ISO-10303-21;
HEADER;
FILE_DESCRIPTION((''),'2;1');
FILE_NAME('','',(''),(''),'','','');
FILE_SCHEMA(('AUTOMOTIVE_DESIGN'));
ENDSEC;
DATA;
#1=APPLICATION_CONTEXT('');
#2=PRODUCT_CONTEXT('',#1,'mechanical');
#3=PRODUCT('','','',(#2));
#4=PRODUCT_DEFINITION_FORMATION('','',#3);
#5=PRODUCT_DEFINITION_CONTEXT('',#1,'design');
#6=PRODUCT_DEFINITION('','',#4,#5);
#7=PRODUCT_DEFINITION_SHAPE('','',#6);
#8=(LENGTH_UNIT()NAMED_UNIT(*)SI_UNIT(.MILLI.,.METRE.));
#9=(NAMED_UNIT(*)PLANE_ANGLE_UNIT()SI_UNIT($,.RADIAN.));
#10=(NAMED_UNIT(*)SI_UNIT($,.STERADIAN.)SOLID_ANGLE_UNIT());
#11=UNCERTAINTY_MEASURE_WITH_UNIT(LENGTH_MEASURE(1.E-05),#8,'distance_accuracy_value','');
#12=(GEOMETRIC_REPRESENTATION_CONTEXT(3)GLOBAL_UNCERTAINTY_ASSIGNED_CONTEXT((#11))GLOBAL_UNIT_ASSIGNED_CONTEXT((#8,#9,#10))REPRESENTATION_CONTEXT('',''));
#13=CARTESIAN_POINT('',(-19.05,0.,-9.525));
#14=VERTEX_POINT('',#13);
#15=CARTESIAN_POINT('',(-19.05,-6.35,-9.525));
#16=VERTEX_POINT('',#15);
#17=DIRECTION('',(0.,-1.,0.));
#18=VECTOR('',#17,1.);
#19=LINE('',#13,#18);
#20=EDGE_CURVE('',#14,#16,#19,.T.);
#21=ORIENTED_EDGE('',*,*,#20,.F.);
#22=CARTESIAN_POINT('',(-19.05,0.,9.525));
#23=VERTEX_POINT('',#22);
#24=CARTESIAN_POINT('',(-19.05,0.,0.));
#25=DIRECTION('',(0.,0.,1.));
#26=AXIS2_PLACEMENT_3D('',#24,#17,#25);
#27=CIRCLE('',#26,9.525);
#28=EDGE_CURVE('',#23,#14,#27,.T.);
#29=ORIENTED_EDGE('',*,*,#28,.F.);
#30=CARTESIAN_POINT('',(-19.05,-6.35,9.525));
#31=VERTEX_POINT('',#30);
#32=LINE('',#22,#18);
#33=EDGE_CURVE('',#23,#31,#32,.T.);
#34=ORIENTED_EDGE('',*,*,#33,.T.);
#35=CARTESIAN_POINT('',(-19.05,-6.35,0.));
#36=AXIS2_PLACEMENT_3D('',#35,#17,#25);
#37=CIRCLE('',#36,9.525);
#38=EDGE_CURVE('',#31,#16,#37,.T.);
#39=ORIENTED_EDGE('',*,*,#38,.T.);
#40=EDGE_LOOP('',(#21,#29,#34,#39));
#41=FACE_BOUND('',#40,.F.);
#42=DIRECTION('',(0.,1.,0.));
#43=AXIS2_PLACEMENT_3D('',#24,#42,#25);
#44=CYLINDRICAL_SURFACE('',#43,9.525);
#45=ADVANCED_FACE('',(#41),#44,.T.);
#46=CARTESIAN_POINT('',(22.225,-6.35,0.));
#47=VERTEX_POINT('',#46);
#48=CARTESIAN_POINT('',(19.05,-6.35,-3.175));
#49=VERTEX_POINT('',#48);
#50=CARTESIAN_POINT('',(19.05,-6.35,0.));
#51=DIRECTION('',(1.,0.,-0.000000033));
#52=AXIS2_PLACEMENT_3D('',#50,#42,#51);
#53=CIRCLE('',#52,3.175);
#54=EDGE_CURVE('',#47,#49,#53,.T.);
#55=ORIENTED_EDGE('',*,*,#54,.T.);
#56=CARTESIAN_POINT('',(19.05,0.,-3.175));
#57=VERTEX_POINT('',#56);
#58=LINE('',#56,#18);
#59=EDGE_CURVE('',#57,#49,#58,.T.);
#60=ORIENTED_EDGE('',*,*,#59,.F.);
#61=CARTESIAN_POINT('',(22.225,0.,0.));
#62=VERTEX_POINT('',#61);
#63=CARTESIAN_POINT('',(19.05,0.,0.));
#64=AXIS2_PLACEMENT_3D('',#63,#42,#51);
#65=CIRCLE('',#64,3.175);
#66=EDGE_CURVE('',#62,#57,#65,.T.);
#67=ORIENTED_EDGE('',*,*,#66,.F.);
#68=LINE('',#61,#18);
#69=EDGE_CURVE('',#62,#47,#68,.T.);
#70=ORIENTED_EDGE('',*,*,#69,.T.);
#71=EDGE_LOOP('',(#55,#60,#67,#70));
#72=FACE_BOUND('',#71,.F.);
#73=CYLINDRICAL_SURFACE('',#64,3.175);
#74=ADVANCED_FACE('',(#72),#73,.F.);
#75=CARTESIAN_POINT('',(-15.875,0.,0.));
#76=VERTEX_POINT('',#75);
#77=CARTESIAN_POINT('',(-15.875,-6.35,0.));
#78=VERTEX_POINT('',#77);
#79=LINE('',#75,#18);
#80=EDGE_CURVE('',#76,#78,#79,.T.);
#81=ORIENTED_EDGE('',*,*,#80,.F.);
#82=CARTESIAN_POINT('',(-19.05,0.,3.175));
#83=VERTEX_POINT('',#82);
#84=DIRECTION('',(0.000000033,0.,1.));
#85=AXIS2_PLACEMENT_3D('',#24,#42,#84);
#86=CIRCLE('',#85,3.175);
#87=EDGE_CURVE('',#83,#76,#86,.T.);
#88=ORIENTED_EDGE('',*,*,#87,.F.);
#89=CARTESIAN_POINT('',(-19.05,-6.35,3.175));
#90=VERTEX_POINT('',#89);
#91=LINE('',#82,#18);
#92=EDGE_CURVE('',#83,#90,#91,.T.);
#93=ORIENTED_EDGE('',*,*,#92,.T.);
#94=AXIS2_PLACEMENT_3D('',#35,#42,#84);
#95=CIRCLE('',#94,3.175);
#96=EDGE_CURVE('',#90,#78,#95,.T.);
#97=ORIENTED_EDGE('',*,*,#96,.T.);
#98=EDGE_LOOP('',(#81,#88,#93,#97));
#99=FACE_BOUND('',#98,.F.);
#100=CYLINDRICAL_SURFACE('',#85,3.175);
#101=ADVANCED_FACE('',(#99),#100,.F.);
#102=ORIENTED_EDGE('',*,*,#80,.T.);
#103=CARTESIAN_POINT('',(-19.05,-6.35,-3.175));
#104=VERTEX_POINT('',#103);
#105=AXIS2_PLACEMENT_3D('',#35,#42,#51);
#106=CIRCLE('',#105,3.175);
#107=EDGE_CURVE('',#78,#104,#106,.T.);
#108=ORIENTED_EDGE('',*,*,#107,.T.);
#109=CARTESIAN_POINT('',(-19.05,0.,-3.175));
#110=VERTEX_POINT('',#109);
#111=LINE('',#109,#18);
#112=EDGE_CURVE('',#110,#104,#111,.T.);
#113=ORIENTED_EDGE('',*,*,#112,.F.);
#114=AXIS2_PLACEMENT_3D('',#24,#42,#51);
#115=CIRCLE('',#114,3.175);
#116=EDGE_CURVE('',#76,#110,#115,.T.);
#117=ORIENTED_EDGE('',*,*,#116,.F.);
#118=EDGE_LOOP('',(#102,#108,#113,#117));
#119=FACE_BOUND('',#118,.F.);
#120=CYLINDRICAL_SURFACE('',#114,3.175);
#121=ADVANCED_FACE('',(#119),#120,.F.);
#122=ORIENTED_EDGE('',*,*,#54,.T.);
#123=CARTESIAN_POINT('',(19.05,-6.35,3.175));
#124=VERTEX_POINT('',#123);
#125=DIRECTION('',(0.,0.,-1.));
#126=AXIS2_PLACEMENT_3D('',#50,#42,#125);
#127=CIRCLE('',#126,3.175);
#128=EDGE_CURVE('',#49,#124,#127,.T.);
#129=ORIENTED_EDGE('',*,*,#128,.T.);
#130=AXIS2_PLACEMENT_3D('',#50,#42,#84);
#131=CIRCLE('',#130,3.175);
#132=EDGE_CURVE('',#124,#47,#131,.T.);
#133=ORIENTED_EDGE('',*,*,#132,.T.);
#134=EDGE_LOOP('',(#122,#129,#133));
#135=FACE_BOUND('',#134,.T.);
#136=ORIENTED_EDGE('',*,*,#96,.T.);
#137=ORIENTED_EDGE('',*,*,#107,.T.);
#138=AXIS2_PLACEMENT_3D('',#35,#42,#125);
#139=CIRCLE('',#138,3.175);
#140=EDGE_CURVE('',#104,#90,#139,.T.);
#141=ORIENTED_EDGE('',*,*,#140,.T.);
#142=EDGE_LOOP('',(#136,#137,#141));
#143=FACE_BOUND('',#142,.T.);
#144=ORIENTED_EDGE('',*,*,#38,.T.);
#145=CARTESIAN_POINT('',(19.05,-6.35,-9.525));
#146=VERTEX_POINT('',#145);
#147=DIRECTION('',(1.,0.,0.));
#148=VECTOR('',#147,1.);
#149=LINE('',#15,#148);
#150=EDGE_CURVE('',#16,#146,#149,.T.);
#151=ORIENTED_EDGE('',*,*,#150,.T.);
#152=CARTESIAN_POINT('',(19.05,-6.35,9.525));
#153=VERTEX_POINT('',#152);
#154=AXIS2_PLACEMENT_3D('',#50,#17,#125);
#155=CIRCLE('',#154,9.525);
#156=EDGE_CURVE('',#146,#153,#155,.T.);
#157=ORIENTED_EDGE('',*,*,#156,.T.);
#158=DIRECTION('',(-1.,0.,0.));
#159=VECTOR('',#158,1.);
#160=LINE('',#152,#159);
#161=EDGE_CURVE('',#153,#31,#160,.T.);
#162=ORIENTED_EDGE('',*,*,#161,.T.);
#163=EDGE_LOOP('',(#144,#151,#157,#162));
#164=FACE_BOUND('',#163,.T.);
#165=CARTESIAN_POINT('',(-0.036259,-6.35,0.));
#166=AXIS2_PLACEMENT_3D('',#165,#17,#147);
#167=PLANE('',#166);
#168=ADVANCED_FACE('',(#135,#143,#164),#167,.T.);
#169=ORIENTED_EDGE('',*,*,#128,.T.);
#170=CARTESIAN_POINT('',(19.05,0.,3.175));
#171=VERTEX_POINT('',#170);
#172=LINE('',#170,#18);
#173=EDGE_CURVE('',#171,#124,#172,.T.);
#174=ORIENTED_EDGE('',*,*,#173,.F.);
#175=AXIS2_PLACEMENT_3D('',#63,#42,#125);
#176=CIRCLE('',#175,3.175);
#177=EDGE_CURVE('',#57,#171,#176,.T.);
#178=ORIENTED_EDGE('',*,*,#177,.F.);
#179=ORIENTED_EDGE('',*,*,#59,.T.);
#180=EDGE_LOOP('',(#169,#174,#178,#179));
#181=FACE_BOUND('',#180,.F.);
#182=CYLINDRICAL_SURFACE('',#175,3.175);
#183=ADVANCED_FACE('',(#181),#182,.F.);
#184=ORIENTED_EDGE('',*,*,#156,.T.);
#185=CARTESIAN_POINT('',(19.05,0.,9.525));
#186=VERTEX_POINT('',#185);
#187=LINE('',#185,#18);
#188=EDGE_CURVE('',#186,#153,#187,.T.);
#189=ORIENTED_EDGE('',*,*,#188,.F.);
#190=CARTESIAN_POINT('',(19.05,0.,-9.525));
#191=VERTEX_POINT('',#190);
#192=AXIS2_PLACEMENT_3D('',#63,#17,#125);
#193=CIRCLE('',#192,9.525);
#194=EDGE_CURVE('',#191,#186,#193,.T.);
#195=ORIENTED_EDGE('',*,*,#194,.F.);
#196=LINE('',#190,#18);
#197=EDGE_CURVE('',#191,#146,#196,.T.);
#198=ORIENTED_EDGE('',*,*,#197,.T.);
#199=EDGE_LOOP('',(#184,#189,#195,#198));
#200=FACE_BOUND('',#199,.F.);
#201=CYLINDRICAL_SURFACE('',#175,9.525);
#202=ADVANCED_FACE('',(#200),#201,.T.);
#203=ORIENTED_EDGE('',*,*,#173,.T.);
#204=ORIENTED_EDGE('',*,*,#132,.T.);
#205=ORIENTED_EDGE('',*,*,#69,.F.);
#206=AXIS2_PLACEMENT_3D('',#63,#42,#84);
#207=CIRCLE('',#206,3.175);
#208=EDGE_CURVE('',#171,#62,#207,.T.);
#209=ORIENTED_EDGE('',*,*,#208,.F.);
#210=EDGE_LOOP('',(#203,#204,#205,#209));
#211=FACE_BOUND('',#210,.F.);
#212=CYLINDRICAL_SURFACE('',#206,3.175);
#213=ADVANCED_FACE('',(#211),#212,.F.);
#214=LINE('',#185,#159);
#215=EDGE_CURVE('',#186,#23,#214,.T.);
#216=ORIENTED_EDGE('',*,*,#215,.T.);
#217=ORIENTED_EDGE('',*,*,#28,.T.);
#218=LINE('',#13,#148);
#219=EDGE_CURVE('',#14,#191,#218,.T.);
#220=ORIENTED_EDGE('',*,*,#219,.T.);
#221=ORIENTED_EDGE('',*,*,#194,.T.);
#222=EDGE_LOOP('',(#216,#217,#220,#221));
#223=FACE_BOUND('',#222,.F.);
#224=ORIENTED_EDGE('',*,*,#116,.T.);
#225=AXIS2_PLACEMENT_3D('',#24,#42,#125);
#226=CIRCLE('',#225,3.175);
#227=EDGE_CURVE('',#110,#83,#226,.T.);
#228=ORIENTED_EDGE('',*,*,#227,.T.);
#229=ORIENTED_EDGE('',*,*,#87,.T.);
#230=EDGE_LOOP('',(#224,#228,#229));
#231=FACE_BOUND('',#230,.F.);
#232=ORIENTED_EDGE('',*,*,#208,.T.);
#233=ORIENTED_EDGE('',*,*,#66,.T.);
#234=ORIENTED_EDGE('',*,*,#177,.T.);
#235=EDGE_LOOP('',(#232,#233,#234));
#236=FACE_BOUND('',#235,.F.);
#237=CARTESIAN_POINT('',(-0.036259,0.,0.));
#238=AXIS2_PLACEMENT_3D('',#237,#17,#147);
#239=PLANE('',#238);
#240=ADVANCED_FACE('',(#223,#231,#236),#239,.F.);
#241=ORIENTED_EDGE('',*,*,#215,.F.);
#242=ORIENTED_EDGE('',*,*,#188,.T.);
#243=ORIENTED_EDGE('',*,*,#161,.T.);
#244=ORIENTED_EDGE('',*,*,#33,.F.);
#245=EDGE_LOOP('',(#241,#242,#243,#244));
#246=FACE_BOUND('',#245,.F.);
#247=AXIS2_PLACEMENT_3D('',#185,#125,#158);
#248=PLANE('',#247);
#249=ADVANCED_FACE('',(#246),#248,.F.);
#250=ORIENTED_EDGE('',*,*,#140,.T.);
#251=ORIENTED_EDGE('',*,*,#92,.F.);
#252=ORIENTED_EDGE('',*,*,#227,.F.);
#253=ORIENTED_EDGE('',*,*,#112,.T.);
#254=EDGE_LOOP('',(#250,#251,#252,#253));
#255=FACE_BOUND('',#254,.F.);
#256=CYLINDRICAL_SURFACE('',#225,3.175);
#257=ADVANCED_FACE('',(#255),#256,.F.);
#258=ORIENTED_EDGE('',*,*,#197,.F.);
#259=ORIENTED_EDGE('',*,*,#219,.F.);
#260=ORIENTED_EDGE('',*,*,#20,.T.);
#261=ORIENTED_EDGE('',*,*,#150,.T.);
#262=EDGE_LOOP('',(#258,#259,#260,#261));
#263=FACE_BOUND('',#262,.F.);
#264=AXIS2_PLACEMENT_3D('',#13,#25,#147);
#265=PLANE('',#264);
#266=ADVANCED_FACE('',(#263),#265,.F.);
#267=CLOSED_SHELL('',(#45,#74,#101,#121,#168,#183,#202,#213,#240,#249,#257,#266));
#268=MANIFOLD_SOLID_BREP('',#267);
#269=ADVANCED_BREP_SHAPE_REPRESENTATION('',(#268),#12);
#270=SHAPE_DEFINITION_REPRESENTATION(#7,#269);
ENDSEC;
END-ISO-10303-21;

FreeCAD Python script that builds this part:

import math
import FreeCAD as App
import Part
import Sketcher

V = App.Vector
Q = App.Units.Quantity

doc = App.newDocument("Part")
body = doc.addObject("PartDesign::Body", "Body")

# Sketch on XZ plane
sketch1 = body.newObject("Sketcher::SketchObject", "Sketch")
sketch1.AttachmentSupport = (doc.getObject("XZ_Plane"), [""])
sketch1.MapMode = "FlatFace"
sketch1.addGeometry([
    Part.LineSegment(V(19.05, 9.525, 0), V(-19.05, 9.525, 0)),  # 0
    Part.ArcOfCircle(Part.Circle(V(-19.05, 0, 0), V(0, 0, 1), 9.525), math.radians(90), math.radians(270)),  # 1
    Part.LineSegment(V(-19.05, -9.525, 0), V(19.05, -9.525, 0)),  # 2
    Part.ArcOfCircle(Part.Circle(V(19.05, 0, 0), V(0, 0, 1), 9.525), math.radians(-90), math.radians(90)),  # 3
    Part.ArcOfCircle(Part.Circle(V(19.05, 0, 0), V(0, 0, 1), 3.175), math.radians(90), math.radians(270)),  # 4
    Part.ArcOfCircle(Part.Circle(V(19.05, 0, 0), V(0, 0, 1), 3.175), math.radians(0.000002), math.radians(89.999998)),  # 5
    Part.ArcOfCircle(Part.Circle(V(19.05, 0, 0), V(0, 0, 1), 3.175), math.radians(-89.999998), math.radians(-0.000002)),  # 6
    Part.ArcOfCircle(Part.Circle(V(-19.05, 0, 0), V(0, 0, 1), 3.175), math.radians(0.000002), math.radians(89.999998)),  # 7
    Part.ArcOfCircle(Part.Circle(V(-19.05, 0, 0), V(0, 0, 1), 3.175), math.radians(-89.999998), math.radians(-0.000002)),  # 8
    Part.ArcOfCircle(Part.Circle(V(-19.05, 0, 0), V(0, 0, 1), 3.175), math.radians(90), math.radians(270)),  # 9
], False)
sketch1.addConstraint([
    Sketcher.Constraint("Tangent", 0, 2, 1, 1),
    Sketcher.Constraint("Tangent", 1, 2, 2, 1),
    Sketcher.Constraint("Tangent", 2, 2, 3, 1),
    Sketcher.Constraint("Tangent", 3, 2, 0, 1),
    Sketcher.Constraint("Tangent", 4, 1, 5, 2),
    Sketcher.Constraint("Tangent", 5, 1, 6, 2),
    Sketcher.Constraint("Tangent", 6, 1, 4, 2),
    Sketcher.Constraint("Tangent", 7, 1, 8, 2),
    Sketcher.Constraint("Tangent", 8, 1, 9, 2),
    Sketcher.Constraint("Tangent", 9, 1, 7, 2),
    Sketcher.Constraint("Horizontal", 0),
    Sketcher.Constraint("Horizontal", 2),
    Sketcher.Constraint("Coincident", 4, 3, 3, 3),
    Sketcher.Constraint("Coincident", 7, 3, 1, 3),
    Sketcher.Constraint("Equal", 6, 7),
    Sketcher.Constraint("Symmetric", 1, 3, 3, 3, -1, 1),
    Sketcher.Constraint("PointOnObject", 5, 1, -1),
    Sketcher.Constraint("PointOnObject", 7, 1, -1),
    Sketcher.Constraint("Vertical", 3, 2, 4, 1),
    Sketcher.Constraint("Vertical", 4, 1, 6, 1),
    Sketcher.Constraint("Vertical", 1, 2, 8, 1),
    Sketcher.Constraint("Vertical", 8, 1, 9, 1),
    Sketcher.Constraint("DistanceX", 0, 2, 0, 1, Q("1.5 in")),
    Sketcher.Constraint("Radius", 1, Q("0.375 in")),
    Sketcher.Constraint("Radius", 4, Q("0.125 in")),
])
pad1 = body.newObject("PartDesign::Pad", "Pad")
pad1.Profile = sketch1
pad1.Length = Q("0.25 in")

doc.recompute()
